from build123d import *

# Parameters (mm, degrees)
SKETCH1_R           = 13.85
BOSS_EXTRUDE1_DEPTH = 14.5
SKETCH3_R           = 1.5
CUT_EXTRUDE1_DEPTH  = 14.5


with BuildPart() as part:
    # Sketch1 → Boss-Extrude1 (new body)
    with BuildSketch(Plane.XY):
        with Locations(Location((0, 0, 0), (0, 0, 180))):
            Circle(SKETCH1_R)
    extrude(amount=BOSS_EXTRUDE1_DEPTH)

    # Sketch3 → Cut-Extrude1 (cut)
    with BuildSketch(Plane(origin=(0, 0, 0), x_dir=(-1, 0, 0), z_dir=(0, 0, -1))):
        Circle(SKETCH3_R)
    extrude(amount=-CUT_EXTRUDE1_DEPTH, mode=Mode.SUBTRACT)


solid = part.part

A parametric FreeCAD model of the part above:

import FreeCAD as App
import Part
import Sketcher

V = App.Vector

doc = App.newDocument("Part")
body = doc.addObject("PartDesign::Body", "Body")

# Sketch on XY plane
sketch1 = doc.addObject("Sketcher::SketchObject", "Sketch")
body.addObject(sketch1)
sketch1.AttachmentSupport = (doc.XY_Plane, [""])
sketch1.MapMode = "FlatFace"
sketch1.addGeometry(Part.Circle(V(0, 0, 0), V(0, 0, 1), 14), False)
sketch1.addConstraint([
    Sketcher.Constraint("Coincident", 0, 3, -1, 1),
    Sketcher.Constraint("Diameter", 0, 27.7),
])
pad1 = doc.addObject("PartDesign::Pad", "Pad")
body.addObject(pad1)
pad1.Profile = sketch1
pad1.Length = 14.5

# Sketch on XY plane
sketch2 = doc.addObject("Sketcher::SketchObject", "Sketch001")
body.addObject(sketch2)
sketch2.AttachmentSupport = (doc.XY_Plane, [""])
sketch2.MapMode = "FlatFace"
sketch2.addGeometry(Part.Circle(V(0, 0, 0), V(0, 0, 1), 1.5), False)
sketch2.addConstraint([
    Sketcher.Constraint("Coincident", 0, 3, -1, 1),
    Sketcher.Constraint("Diameter", 0, 3.0),
])
pocket1 = doc.addObject("PartDesign::Pocket", "Pocket")
body.addObject(pocket1)
pocket1.Profile = sketch2
pocket1.Length = 14.5
pocket1.Reversed = True

doc.recompute()
